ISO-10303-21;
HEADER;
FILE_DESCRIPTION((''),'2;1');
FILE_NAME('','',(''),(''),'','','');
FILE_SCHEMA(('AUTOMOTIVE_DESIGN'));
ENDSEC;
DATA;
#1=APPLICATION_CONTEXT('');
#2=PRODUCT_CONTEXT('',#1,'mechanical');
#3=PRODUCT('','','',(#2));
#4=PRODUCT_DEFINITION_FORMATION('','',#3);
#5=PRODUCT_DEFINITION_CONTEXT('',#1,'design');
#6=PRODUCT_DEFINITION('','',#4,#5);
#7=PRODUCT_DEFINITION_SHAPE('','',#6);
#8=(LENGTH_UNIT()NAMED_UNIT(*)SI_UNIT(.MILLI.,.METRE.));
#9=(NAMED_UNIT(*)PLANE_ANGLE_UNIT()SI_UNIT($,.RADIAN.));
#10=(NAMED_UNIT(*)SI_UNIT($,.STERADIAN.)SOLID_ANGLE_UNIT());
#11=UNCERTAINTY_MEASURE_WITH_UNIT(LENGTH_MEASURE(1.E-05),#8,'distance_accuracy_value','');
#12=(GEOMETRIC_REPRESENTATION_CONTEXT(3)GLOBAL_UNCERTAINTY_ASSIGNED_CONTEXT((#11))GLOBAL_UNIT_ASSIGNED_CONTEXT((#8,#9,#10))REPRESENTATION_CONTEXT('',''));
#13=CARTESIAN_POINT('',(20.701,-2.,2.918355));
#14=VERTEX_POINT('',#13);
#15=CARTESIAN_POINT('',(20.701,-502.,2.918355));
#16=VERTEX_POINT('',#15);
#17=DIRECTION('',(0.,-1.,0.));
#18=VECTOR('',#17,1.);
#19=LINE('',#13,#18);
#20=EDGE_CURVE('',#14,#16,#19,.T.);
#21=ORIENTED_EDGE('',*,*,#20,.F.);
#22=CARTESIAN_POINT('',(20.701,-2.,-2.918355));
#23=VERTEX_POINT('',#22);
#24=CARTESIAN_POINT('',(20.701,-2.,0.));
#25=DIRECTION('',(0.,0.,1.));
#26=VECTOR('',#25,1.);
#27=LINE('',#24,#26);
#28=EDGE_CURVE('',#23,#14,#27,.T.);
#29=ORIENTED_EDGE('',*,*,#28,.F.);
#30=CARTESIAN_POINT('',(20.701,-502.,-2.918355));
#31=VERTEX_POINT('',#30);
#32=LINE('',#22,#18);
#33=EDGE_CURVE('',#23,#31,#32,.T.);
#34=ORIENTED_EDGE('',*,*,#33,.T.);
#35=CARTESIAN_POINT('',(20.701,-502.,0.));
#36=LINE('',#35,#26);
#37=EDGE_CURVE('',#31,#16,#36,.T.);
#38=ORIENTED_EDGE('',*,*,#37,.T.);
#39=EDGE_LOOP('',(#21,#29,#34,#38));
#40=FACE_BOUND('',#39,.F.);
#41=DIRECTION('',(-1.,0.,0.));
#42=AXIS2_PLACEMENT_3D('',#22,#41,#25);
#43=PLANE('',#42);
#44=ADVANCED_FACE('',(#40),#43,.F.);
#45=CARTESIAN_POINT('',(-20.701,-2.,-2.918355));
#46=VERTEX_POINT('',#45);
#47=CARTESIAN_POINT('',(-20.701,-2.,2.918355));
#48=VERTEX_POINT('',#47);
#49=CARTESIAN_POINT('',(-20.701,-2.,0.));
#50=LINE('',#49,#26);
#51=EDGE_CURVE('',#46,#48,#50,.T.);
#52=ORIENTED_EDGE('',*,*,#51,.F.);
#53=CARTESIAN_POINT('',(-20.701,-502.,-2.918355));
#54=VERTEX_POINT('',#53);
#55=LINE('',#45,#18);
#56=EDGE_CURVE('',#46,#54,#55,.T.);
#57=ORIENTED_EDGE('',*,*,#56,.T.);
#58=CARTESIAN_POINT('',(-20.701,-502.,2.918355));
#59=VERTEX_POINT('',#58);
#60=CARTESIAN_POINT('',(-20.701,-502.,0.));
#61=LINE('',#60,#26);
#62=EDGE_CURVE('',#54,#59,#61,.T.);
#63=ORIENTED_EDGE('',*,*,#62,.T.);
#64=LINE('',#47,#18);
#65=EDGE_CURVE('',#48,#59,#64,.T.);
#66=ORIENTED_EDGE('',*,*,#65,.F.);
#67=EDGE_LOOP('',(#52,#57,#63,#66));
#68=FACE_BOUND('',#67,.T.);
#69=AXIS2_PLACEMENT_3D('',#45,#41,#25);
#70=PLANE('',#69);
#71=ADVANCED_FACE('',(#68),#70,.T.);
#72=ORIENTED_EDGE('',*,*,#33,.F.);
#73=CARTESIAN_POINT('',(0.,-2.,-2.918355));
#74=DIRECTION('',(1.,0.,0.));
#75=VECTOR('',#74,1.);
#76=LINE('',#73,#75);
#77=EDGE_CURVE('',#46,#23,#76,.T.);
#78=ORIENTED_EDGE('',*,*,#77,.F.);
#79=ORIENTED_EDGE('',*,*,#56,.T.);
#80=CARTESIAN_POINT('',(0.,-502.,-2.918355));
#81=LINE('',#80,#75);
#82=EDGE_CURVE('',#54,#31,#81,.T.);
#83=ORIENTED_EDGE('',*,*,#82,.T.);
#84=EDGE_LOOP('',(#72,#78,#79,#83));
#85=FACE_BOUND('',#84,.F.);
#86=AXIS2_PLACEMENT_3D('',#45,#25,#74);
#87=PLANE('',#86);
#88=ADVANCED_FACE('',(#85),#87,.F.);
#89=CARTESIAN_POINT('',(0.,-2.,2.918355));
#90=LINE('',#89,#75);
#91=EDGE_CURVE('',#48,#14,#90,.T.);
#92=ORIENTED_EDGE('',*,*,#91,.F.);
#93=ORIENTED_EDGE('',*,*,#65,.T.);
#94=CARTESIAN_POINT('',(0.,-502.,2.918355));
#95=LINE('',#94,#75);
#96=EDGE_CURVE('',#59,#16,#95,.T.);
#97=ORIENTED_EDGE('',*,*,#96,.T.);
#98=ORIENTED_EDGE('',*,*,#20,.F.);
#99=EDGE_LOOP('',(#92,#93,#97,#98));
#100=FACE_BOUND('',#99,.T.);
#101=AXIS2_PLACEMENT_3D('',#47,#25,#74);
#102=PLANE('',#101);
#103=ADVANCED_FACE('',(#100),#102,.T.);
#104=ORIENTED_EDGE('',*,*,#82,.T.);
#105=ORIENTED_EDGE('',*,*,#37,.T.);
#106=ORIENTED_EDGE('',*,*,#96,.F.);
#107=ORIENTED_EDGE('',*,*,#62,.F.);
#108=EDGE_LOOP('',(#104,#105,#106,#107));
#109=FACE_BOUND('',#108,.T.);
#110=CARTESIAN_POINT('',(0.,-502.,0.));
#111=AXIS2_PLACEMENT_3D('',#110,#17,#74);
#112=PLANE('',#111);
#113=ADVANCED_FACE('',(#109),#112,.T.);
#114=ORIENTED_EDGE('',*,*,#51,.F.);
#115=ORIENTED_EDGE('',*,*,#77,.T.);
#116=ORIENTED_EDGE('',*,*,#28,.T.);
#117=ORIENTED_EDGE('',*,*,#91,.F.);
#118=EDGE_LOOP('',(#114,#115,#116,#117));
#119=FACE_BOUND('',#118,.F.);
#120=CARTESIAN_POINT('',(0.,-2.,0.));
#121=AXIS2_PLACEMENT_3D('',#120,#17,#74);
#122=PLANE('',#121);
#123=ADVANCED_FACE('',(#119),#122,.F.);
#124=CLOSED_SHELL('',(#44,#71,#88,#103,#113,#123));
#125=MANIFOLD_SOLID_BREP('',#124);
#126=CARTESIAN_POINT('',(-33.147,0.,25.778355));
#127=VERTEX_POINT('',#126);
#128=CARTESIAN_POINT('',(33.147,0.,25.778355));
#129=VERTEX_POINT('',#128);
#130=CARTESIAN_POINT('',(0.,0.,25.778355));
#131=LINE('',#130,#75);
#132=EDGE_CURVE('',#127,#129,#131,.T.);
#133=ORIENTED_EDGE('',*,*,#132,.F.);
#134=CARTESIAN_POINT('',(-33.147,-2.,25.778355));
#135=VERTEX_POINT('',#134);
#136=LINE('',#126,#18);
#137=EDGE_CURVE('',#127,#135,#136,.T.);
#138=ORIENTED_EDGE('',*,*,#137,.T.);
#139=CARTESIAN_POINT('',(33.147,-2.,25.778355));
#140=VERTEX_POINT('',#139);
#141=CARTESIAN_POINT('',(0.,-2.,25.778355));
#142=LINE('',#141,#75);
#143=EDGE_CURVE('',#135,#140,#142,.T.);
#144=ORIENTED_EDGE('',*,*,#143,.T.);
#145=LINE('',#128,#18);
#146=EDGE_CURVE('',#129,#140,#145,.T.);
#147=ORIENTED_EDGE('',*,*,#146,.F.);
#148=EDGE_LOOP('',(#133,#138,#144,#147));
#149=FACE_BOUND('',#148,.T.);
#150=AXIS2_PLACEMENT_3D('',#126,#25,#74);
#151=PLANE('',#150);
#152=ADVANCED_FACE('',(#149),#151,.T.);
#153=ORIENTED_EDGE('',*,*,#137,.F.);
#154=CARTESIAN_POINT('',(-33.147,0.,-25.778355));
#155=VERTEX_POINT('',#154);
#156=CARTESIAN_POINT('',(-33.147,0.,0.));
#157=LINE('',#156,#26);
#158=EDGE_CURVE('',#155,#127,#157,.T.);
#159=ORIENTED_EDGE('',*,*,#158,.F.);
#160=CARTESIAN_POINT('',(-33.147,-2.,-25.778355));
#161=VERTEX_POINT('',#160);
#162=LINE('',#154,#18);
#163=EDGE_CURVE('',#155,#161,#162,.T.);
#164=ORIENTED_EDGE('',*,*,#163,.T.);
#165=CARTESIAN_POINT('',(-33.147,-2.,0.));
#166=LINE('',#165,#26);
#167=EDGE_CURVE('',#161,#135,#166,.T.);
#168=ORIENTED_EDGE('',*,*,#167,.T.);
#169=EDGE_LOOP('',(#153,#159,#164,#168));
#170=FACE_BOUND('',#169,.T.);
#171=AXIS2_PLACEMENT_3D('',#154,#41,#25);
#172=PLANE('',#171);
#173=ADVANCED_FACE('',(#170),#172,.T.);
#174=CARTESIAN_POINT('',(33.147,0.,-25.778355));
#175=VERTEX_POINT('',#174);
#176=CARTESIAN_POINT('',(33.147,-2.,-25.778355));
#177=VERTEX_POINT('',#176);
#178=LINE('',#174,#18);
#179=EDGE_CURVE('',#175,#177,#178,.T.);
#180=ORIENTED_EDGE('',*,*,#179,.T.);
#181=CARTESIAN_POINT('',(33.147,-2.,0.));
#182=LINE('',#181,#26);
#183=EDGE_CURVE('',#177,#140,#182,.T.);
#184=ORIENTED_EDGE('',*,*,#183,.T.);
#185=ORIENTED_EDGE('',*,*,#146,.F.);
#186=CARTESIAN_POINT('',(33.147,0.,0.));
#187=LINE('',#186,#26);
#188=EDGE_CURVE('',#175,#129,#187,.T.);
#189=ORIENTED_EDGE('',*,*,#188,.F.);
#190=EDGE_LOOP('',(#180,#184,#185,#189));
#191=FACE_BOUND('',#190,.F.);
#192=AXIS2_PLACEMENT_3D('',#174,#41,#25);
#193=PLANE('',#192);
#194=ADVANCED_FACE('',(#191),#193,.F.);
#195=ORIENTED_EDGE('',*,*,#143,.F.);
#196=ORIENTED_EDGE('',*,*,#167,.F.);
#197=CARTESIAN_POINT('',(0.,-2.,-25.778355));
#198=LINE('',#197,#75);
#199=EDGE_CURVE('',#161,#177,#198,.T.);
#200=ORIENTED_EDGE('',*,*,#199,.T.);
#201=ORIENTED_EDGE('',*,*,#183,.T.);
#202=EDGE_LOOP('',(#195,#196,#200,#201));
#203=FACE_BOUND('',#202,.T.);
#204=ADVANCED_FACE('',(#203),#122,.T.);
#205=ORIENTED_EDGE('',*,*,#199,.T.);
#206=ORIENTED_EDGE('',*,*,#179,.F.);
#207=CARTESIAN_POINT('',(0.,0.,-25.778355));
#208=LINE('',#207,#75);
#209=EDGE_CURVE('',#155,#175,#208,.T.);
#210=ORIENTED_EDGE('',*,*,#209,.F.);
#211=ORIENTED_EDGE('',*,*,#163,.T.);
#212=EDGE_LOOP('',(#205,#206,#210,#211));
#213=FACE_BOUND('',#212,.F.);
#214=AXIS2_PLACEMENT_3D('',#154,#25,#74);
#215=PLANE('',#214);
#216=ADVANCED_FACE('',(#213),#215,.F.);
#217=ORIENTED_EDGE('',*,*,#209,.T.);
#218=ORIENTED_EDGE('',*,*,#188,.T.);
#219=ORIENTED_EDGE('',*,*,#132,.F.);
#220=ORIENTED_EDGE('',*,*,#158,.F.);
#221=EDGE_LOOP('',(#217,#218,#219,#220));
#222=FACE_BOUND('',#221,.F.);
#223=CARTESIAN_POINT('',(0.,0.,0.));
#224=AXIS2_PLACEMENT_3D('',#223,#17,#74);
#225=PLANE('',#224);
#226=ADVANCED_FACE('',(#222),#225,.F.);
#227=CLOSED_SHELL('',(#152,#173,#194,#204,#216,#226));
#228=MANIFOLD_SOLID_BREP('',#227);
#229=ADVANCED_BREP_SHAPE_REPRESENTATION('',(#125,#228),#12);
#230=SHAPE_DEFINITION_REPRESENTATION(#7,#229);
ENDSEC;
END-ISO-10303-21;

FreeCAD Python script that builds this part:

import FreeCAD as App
import Part
import Sketcher
Q = App.Units.Quantity

doc = App.newDocument("Part")
body = doc.addObject("PartDesign::Body", "Body")

# Sketch on XZ plane
sketch1 = body.newObject("Sketcher::SketchObject", "Sketch")
sketch1.AttachmentSupport = (doc.getObject("XZ_Plane"), [""])
sketch1.MapMode = "FlatFace"
sketch1.addGeometry(Part.LineSegment(App.Vector(-33, 26, 0), App.Vector(-33, -26, 0)), False)
sketch1.addGeometry(Part.LineSegment(App.Vector(-33, -26, 0), App.Vector(33, -26, 0)), False)
sketch1.addGeometry(Part.LineSegment(App.Vector(33, -26, 0), App.Vector(33, 26, 0)), False)
sketch1.addGeometry(Part.LineSegment(App.Vector(33, 26, 0), App.Vector(-33, 26, 0)), False)
sketch1.addConstraint(Sketcher.Constraint("Coincident", 0, 2, 1, 1))
sketch1.addConstraint(Sketcher.Constraint("Coincident", 1, 2, 2, 1))
sketch1.addConstraint(Sketcher.Constraint("Coincident", 2, 2, 3, 1))
sketch1.addConstraint(Sketcher.Constraint("Coincident", 3, 2, 0, 1))
sketch1.addConstraint(Sketcher.Constraint("Vertical", 0))
sketch1.addConstraint(Sketcher.Constraint("Horizontal", 1))
sketch1.addConstraint(Sketcher.Constraint("Vertical", 2))
sketch1.addConstraint(Sketcher.Constraint("Horizontal", 3))
sketch1.addConstraint(Sketcher.Constraint("Symmetric", 0, 2, 2, 2, -1, 1))
sketch1.addConstraint(Sketcher.Constraint("DistanceX", 1, 1, 1, 2, Q("66.294 mm")))
sketch1.addConstraint(Sketcher.Constraint("DistanceY", 0, 2, 0, 1, Q("51.55671 mm")))
pad1 = body.newObject("PartDesign::Pad", "Pad")
pad1.Profile = sketch1
pad1.Length = 2
body2 = doc.addObject("PartDesign::Body", "Body001")

# Sketch on XZ plane
sketch2 = body2.newObject("Sketcher::SketchObject", "Sketch001")
sketch2.AttachmentSupport = (doc.getObject("XZ_Plane001"), [""])
sketch2.MapMode = "FlatFace"
sketch2.AttachmentOffset = App.Placement(App.Vector(0, 0, 2), App.Rotation())
sketch2.addGeometry(Part.LineSegment(App.Vector(-21, 3, 0), App.Vector(-21, -3, 0)), False)
sketch2.addGeometry(Part.LineSegment(App.Vector(-21, -3, 0), App.Vector(21, -3, 0)), False)
sketch2.addGeometry(Part.LineSegment(App.Vector(21, -3, 0), App.Vector(21, 3, 0)), False)
sketch2.addGeometry(Part.LineSegment(App.Vector(21, 3, 0), App.Vector(-21, 3, 0)), False)
sketch2.addConstraint(Sketcher.Constraint("Coincident", 0, 2, 1, 1))
sketch2.addConstraint(Sketcher.Constraint("Coincident", 1, 2, 2, 1))
sketch2.addConstraint(Sketcher.Constraint("Coincident", 2, 2, 3, 1))
sketch2.addConstraint(Sketcher.Constraint("Coincident", 3, 2, 0, 1))
sketch2.addConstraint(Sketcher.Constraint("Vertical", 0))
sketch2.addConstraint(Sketcher.Constraint("Horizontal", 1))
sketch2.addConstraint(Sketcher.Constraint("Vertical", 2))
sketch2.addConstraint(Sketcher.Constraint("Horizontal", 3))
sketch2.addConstraint(Sketcher.Constraint("Symmetric", 0, 2, 2, 2, -1, 1))
sketch2.addConstraint(Sketcher.Constraint("DistanceX", 1, 1, 1, 2, Q("41.402 mm")))
sketch2.addConstraint(Sketcher.Constraint("DistanceY", 0, 2, 0, 1, Q("5.83671 mm")))
pad2 = body2.newObject("PartDesign::Pad", "Pad001")
pad2.Profile = sketch2
pad2.Length = 500

doc.recompute()
